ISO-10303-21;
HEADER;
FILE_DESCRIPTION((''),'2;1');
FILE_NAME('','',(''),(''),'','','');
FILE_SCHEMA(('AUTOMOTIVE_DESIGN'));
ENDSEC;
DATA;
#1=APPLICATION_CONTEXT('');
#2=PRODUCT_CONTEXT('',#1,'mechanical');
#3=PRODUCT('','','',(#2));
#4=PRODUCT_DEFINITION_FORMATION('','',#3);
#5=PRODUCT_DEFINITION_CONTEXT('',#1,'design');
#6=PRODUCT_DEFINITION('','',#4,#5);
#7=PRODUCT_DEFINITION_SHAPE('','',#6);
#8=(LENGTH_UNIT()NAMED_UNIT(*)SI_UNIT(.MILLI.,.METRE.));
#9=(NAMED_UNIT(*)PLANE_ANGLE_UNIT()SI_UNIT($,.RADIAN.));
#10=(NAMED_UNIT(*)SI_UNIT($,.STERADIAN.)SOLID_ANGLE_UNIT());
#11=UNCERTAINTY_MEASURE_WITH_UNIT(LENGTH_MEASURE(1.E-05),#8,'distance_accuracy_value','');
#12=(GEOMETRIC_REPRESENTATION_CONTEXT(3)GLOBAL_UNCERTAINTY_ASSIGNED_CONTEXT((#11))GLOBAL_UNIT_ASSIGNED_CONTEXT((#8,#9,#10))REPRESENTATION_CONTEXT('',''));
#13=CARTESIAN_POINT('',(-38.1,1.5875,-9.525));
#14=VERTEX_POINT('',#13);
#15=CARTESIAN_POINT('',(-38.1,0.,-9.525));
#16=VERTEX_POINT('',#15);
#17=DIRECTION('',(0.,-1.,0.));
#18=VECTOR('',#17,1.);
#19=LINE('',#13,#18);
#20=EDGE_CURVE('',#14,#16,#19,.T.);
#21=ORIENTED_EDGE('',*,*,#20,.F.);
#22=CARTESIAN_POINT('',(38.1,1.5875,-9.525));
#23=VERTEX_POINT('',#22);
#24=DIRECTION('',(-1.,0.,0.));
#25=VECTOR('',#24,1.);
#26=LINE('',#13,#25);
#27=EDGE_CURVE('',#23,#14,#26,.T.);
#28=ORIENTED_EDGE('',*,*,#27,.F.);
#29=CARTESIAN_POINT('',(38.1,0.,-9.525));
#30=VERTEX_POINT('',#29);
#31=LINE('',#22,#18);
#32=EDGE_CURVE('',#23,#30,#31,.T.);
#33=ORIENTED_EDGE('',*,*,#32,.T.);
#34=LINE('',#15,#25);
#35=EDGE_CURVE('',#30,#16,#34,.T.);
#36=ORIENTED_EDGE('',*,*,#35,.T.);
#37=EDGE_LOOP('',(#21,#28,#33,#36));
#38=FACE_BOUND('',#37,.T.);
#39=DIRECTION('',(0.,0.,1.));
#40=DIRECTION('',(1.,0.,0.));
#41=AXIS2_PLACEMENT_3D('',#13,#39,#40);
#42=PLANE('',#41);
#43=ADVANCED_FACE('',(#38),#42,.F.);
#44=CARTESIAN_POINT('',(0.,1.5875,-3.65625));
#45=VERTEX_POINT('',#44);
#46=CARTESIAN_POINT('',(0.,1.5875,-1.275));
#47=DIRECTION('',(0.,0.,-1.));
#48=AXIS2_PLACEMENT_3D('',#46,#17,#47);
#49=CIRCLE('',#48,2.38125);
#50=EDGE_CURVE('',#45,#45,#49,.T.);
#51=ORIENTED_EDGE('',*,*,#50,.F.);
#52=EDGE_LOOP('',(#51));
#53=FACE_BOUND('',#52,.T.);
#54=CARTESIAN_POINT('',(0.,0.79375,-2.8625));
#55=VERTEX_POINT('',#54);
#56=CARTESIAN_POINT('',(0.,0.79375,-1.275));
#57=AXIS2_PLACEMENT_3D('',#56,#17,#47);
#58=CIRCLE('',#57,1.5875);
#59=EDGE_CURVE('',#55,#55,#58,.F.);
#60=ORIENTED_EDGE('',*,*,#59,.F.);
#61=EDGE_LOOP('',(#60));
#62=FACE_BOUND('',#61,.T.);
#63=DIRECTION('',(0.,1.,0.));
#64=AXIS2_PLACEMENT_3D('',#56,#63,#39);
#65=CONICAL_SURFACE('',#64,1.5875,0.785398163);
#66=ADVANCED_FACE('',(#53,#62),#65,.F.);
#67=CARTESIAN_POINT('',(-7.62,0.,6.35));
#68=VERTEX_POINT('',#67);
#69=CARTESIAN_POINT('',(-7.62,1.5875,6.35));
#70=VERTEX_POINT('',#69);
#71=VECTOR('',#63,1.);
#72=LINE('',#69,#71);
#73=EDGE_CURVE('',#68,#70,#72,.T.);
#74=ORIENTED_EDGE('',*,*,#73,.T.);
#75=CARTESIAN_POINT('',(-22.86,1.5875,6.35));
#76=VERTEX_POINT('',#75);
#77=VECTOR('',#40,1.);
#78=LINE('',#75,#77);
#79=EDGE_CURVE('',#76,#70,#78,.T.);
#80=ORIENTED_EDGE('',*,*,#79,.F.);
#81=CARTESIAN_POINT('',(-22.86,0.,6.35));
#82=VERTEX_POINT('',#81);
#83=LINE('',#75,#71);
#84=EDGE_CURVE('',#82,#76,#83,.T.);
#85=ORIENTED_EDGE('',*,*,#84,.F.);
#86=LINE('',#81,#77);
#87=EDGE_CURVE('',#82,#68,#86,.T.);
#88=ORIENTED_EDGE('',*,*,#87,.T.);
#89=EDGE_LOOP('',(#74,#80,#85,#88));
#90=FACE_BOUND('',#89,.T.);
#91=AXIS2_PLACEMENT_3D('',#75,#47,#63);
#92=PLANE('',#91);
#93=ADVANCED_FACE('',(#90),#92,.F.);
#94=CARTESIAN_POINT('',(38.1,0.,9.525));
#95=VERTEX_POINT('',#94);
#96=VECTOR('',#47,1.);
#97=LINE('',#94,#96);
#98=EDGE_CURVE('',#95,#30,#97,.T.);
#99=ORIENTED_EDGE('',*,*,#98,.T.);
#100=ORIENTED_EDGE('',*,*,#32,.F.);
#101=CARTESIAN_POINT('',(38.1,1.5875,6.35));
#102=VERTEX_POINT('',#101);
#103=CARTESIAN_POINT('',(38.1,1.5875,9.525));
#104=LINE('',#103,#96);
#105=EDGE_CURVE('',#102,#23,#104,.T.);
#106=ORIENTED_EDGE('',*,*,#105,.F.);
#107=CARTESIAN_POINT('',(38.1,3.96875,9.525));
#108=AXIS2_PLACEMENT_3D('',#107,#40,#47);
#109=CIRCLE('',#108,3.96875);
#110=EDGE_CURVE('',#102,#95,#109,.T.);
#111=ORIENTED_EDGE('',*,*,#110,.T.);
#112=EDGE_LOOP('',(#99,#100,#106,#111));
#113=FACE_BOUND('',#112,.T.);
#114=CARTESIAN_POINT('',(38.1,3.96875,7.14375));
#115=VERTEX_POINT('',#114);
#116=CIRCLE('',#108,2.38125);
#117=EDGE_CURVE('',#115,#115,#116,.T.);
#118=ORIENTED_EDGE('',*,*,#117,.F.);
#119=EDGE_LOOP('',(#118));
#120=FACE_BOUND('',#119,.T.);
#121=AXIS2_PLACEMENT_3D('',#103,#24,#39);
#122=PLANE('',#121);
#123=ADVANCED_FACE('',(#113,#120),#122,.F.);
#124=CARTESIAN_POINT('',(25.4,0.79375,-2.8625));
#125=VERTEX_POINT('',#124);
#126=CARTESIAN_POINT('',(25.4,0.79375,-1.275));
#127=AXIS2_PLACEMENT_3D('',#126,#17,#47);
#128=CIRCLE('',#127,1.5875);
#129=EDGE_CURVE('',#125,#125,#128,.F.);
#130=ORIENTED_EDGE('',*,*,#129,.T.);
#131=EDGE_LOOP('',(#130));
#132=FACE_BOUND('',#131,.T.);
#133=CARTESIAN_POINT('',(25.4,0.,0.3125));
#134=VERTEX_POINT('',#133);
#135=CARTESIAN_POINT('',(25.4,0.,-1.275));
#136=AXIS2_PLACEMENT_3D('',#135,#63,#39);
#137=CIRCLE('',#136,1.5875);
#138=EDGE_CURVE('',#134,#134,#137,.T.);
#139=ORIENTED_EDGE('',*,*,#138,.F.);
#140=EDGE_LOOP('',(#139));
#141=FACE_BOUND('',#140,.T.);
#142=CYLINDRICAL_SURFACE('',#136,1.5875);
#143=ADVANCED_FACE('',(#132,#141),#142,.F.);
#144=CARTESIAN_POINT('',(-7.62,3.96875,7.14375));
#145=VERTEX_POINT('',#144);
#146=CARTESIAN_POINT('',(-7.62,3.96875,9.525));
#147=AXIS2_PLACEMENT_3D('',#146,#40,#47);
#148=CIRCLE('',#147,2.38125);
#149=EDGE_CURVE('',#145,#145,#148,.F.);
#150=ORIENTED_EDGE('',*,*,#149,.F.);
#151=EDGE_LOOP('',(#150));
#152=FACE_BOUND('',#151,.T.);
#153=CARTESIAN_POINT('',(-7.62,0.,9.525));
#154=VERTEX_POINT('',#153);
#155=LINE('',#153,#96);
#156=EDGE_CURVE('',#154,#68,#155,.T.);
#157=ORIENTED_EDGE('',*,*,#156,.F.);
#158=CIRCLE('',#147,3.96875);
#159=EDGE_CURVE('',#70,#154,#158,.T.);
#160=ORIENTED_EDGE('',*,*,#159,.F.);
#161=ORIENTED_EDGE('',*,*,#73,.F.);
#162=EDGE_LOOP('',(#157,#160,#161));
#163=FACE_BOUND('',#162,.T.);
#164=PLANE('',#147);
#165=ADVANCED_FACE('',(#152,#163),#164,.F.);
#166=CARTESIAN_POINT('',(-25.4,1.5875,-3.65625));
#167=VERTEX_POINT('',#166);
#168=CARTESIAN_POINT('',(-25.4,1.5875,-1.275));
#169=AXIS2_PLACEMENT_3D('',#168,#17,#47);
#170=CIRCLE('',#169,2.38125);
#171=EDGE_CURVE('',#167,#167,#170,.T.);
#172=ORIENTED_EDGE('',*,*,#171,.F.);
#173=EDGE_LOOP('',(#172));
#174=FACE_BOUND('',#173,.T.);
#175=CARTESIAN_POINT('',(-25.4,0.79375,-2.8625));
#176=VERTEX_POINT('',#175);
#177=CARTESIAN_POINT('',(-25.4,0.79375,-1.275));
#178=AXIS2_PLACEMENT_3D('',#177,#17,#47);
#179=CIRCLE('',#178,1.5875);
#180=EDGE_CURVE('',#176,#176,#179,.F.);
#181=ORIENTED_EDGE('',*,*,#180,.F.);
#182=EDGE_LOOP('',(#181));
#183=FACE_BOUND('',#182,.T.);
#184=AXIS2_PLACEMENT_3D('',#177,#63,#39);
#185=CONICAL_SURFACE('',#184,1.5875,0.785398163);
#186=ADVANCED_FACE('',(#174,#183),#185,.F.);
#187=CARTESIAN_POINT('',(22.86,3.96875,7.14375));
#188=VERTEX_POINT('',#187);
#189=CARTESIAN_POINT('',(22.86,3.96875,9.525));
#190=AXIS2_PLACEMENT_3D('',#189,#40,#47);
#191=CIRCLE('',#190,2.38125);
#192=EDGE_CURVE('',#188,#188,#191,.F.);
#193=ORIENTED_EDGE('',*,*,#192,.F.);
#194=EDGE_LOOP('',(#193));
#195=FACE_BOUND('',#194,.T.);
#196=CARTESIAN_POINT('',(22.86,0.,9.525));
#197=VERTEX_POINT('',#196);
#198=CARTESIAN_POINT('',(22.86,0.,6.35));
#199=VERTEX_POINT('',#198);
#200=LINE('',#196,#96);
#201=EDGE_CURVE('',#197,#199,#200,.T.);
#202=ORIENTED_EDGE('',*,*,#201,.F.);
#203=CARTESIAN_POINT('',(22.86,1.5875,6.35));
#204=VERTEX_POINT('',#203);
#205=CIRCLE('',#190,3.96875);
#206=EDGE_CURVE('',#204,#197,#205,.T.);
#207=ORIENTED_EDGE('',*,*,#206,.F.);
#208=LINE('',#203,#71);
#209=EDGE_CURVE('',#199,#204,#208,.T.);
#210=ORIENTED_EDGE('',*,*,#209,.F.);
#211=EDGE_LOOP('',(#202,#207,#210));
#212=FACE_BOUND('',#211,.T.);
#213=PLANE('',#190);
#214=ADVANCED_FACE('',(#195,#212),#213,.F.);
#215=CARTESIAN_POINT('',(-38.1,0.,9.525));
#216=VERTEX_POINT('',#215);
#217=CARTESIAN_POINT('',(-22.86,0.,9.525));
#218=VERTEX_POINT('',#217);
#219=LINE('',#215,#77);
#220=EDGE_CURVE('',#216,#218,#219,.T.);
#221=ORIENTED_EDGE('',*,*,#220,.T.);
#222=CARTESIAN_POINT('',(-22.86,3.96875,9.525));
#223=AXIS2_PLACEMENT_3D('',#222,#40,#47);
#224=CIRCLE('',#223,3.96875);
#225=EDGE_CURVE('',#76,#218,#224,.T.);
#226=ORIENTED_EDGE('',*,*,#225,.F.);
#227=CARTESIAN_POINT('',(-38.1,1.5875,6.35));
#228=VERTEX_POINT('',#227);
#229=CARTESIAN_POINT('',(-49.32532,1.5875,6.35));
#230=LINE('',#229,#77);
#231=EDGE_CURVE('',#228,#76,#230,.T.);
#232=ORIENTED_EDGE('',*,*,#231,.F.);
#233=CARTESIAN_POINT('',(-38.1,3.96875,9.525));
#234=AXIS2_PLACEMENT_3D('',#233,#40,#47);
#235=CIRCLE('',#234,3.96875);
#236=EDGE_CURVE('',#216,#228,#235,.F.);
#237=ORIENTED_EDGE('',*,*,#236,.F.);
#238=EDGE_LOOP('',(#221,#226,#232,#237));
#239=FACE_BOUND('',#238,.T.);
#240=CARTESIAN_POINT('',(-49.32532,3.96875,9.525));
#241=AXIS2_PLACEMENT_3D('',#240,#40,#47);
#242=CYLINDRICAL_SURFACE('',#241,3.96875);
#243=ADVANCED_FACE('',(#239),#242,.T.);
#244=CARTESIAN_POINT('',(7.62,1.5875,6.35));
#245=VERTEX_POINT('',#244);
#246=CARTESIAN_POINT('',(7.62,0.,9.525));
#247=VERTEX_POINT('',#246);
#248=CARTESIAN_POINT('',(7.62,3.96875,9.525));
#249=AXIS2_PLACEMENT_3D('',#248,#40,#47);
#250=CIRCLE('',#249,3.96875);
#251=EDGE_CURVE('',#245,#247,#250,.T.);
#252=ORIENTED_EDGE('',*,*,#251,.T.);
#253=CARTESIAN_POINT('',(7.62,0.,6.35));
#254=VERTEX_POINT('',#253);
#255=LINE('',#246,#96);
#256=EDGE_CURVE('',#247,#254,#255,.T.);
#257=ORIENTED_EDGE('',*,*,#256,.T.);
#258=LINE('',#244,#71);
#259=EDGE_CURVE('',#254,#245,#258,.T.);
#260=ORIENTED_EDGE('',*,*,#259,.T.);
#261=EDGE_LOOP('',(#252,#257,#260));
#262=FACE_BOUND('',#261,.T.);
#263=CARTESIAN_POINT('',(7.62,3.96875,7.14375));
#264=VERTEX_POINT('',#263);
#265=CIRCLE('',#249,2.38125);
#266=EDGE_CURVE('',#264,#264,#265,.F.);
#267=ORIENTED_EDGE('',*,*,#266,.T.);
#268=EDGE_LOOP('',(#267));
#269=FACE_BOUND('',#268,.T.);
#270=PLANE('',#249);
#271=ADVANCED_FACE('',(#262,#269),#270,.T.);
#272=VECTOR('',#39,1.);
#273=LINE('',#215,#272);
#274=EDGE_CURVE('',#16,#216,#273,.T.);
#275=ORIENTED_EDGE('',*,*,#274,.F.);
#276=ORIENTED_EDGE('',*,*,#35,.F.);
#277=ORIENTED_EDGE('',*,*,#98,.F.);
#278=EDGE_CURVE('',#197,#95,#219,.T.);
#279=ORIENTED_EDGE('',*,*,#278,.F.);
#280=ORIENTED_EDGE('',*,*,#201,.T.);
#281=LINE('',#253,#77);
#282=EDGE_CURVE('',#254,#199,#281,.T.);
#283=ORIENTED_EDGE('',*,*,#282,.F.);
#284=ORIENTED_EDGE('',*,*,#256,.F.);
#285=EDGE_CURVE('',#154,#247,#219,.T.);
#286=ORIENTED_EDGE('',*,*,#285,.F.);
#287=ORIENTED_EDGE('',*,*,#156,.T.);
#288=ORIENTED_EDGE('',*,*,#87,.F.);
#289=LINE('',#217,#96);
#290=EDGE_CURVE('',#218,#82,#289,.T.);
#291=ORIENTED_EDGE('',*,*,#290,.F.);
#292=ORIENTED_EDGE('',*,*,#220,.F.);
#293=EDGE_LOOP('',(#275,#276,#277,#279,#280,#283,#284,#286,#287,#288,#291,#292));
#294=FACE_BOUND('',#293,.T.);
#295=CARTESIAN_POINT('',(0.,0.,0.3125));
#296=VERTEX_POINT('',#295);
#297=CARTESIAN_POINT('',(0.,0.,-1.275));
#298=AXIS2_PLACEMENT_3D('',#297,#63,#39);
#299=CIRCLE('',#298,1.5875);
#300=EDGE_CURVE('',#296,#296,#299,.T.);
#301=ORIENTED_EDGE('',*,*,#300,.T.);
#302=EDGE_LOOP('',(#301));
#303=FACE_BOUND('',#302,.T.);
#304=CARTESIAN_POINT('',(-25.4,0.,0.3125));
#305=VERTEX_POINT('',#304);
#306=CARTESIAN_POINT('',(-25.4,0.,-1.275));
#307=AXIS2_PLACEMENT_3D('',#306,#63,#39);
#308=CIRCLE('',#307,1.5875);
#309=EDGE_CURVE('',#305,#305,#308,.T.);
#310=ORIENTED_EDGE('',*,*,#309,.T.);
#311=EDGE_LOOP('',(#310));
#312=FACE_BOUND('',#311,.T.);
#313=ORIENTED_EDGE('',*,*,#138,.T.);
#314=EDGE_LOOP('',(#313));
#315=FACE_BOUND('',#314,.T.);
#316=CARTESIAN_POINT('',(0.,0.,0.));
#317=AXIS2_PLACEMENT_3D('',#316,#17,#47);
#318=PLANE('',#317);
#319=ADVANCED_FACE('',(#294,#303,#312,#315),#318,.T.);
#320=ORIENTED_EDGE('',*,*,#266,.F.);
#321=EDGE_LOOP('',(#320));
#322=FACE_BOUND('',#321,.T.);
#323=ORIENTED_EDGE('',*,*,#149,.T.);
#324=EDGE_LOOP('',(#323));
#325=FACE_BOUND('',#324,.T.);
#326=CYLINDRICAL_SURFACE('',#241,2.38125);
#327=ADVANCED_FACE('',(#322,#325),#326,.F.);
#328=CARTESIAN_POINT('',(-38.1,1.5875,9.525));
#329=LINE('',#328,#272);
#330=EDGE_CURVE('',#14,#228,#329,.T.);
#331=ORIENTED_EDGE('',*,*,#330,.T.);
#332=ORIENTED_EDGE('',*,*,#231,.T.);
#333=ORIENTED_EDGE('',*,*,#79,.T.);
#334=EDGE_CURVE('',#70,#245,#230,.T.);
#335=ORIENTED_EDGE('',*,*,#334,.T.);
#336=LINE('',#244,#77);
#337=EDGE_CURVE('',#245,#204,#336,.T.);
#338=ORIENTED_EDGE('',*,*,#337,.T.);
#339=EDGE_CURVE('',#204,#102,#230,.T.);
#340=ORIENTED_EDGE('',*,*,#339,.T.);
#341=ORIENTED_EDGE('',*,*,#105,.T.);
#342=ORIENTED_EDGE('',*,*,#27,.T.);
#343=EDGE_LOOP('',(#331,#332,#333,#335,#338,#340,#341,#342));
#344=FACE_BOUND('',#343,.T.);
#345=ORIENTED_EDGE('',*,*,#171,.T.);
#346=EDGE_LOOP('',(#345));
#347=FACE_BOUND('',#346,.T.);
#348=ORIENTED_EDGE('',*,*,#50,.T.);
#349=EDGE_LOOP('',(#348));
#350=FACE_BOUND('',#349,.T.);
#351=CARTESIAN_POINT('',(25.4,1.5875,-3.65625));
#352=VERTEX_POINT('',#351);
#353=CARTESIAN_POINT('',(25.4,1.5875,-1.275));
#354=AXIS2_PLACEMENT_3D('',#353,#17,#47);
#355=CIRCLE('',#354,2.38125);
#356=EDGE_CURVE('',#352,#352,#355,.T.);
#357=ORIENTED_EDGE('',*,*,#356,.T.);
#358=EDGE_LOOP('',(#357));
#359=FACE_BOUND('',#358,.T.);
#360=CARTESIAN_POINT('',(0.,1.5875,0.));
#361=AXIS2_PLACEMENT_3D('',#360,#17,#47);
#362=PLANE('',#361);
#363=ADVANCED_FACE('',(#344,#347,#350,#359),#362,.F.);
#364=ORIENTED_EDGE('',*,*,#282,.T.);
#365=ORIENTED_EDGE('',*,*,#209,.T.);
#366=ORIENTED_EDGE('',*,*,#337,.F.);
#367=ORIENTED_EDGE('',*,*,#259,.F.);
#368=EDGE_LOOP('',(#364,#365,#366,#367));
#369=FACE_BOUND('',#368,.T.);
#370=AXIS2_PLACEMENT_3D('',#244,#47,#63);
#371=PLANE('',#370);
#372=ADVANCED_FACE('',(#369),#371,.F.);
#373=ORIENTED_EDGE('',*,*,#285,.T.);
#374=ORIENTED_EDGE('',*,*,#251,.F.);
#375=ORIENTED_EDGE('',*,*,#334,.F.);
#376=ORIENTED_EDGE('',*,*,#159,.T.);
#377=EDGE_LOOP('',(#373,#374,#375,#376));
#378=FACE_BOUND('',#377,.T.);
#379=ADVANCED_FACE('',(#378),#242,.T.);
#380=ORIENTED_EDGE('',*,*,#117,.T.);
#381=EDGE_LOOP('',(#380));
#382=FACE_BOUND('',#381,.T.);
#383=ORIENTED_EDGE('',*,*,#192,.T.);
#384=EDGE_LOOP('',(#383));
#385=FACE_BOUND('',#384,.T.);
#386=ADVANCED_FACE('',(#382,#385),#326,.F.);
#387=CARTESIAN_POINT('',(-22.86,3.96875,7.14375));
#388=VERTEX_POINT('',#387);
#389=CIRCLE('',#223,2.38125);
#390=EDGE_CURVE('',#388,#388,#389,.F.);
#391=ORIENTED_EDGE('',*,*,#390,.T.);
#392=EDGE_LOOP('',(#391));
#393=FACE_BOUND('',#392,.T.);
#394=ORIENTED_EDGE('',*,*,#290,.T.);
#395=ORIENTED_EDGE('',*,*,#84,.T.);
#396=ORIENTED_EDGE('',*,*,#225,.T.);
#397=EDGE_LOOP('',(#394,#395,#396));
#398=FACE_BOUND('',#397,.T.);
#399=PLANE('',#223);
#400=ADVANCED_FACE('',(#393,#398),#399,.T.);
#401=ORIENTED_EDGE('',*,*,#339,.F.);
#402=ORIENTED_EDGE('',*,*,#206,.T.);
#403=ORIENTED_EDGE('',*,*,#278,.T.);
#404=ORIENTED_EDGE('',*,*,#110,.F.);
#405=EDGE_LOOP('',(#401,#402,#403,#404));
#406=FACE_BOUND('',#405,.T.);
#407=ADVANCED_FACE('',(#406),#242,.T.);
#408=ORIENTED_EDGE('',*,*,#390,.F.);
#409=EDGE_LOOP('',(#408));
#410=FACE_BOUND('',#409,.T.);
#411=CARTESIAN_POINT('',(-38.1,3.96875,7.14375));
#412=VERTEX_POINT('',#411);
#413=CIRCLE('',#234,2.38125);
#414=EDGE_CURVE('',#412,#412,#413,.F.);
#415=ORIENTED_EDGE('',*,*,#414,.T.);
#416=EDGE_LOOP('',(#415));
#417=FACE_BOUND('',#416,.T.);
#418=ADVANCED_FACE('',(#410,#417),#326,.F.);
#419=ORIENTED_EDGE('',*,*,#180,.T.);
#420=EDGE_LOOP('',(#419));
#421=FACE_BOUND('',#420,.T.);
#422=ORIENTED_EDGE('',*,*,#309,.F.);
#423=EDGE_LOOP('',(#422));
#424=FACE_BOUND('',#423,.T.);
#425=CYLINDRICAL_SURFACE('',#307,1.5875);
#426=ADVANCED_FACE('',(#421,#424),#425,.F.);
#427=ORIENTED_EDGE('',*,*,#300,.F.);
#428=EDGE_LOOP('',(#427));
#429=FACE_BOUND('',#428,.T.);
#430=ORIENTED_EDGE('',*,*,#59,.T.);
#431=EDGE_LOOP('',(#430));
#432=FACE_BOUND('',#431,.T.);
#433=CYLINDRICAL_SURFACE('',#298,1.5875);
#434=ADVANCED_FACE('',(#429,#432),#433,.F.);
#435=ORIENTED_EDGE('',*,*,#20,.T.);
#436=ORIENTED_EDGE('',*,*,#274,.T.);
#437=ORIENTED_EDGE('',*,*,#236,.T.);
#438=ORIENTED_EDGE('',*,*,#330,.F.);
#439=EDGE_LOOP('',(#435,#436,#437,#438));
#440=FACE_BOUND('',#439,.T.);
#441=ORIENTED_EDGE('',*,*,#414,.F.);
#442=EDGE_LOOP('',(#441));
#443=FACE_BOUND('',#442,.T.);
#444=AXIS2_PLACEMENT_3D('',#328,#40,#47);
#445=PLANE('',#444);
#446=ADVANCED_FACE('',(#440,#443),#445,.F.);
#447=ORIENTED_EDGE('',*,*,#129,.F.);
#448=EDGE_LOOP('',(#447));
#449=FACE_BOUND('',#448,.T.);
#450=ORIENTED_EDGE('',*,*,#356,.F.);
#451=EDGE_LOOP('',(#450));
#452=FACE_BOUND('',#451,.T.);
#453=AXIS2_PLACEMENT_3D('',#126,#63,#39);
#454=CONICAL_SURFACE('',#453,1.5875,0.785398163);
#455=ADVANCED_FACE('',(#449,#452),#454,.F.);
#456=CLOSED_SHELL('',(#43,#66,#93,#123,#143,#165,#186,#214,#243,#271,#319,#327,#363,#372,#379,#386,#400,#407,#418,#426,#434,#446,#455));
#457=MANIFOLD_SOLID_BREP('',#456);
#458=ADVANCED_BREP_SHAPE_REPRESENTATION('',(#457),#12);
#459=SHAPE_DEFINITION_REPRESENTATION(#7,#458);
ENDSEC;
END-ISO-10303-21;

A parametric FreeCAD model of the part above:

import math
import FreeCAD as App
import Part
import Sketcher
Q = App.Units.Quantity


def edges_at(feature, points):
    """Names of the edges that pass closest to the given points."""
    edges = feature.Shape.Edges
    near = lambda p: min(range(len(edges)), key=lambda i: edges[i].distToShape(Part.Vertex(*p))[0])
    return sorted({f"Edge{near(p) + 1}" for p in points})

doc = App.newDocument("Part")
body = doc.addObject("PartDesign::Body", "Body")

sketch1 = doc.addObject("Sketcher::SketchObject", "Sketch")
body.addObject(sketch1)
sketch1.AttachmentSupport = (doc.XZ_Plane, [""])
sketch1.MapMode = "FlatFace"
sketch1.addGeometry([
    Part.LineSegment(App.Vector(-38, -10, 0), App.Vector(-38, 10, 0)),
    Part.LineSegment(App.Vector(-38, 10, 0), App.Vector(38, 10, 0)),
    Part.LineSegment(App.Vector(38, 10, 0), App.Vector(38, -10, 0)),
    Part.LineSegment(App.Vector(38, -10, 0), App.Vector(-38, -10, 0)),
], False)
sketch1.addConstraint([
    Sketcher.Constraint("Coincident", 0, 2, 1, 1),
    Sketcher.Constraint("Coincident", 1, 2, 2, 1),
    Sketcher.Constraint("Coincident", 2, 2, 3, 1),
    Sketcher.Constraint("Coincident", 3, 2, 0, 1),
    Sketcher.Constraint("Vertical", 0),
    Sketcher.Constraint("Horizontal", 1),
    Sketcher.Constraint("Vertical", 2),
    Sketcher.Constraint("Horizontal", 3),
    Sketcher.Constraint("Symmetric", 0, 2, 2, 2, -1, 1),
    Sketcher.Constraint("DistanceX", 1, 1, 1, 2, Q("3 in")),
    Sketcher.Constraint("DistanceY", 0, 1, 0, 2, Q("0.75 in")),
])
pad1 = doc.addObject("PartDesign::Pad", "Pad")
body.addObject(pad1)
pad1.Profile = sketch1
pad1.Length = Q("0.0625 in")
pad1.Reversed = True

sketch2 = doc.addObject("Sketcher::SketchObject", "Sketch001")
body.addObject(sketch2)
sketch2.AttachmentSupport = (doc.YZ_Plane, [""])
sketch2.MapMode = "FlatFace"
sketch2.AttachmentOffset = App.Placement(App.Vector(0, 0, 1.5 * 25.4), App.Rotation())
sketch2.addGeometry([
    Part.Circle(App.Vector(4, 9.5, 0), App.Vector(0, 0, 1), 4),
    Part.Circle(App.Vector(4, 9.5, 0), App.Vector(0, 0, 1), 2.4),
], False)
sketch2.addConstraint([
    Sketcher.Constraint("Coincident", 1, 3, 0, 3),
    Sketcher.Constraint("Diameter", 0, Q("0.3125 in")),
    Sketcher.Constraint("Diameter", 1, Q("0.1875 in")),
    Sketcher.Constraint("DistanceX", -1, 1, 0, 3, Q("0.15625 in")),
    Sketcher.Constraint("DistanceY", -1, 1, 0, 3, Q("0.375 in")),
])
pad2 = doc.addObject("PartDesign::Pad", "Pad001")
body.addObject(pad2)
pad2.Profile = sketch2
pad2.Length = Q("3 in")
pad2.Reversed = True

sketch3 = doc.addObject("Sketcher::SketchObject", "Sketch002")
body.addObject(sketch3)
sketch3.AttachmentSupport = (doc.XZ_Plane, [""])
sketch3.MapMode = "FlatFace"
sketch3.AttachmentOffset = App.Placement(App.Vector(0, 0, -0.0625 * 25.4), App.Rotation())
sketch3.addGeometry(Part.Circle(App.Vector(-25.4, -1.3, 0), App.Vector(0, 0, 1), 1.6), False)
sketch3.addConstraint([
    Sketcher.Constraint("Diameter", 0, Q("0.125 in")),
    Sketcher.Constraint("DistanceX", 0, 3, -1, 1, Q("1 in")),
    Sketcher.Constraint("DistanceY", 0, 3, -1, 1, 1.275),
])
pocket1 = doc.addObject("PartDesign::Pocket", "Pocket")
body.addObject(pocket1)
pocket1.Profile = sketch3
pocket1.Type = "ThroughAll"
pocket1.Reversed = True
doc.recompute()

chamfer = doc.addObject("PartDesign::Chamfer", "Chamfer")
body.addObject(chamfer)
chamfer.Base = (pocket1, edges_at(pocket1, [(-25.4, 1.587, -2.862)]))
chamfer.Size = Q("0.03125 in")
doc.recompute()

linearpattern = doc.addObject("PartDesign::LinearPattern", "LinearPattern")
body.addObject(linearpattern)
linearpattern.Originals = [pocket1]
linearpattern.Direction = (doc.X_Axis, [""])
linearpattern.Mode = "offset"
linearpattern.Offset = Q("1 in")
linearpattern.Occurrences = 3
body.Tip = linearpattern
doc.recompute()

chamfer2 = doc.addObject("PartDesign::Chamfer", "Chamfer001")
body.addObject(chamfer2)
chamfer2.Base = (linearpattern, edges_at(linearpattern, [(0, 1.587, -2.862), (25.4, 1.587, -2.862)]))
chamfer2.Size = Q("0.03125 in")

sketch4 = doc.addObject("Sketcher::SketchObject", "Sketch003")
body.addObject(sketch4)
sketch4.AttachmentSupport = (doc.YZ_Plane, [""])
sketch4.MapMode = "FlatFace"
sketch4.AttachmentOffset = App.Placement(App.Vector(0, 0, 0.9 * 25.4), App.Rotation())
sketch4.addGeometry([
    Part.LineSegment(App.Vector(0, 6.3, 0), App.Vector(1.6, 6.3, 0)),
    Part.ArcOfCircle(Part.Circle(App.Vector(4, 9.5, 0), App.Vector(0, 0, 1), 4), math.radians(-127), math.radians(180)),
    Part.LineSegment(App.Vector(0, 9.5, 0), App.Vector(0, 6.3, 0)),
], False)
sketch4.addConstraint([
    Sketcher.Constraint("Coincident", 0, 2, 1, 1),
    Sketcher.Constraint("Tangent", 1, 2, 2, 1),
    Sketcher.Constraint("Coincident", 2, 2, 0, 1),
    Sketcher.Constraint("Horizontal", 0),
    Sketcher.Constraint("Vertical", 2),
    Sketcher.Constraint("PointOnObject", 1, 2, -2),
    Sketcher.Constraint("Radius", 1, Q("0.15625 in")),
    Sketcher.Constraint("DistanceX", 0, 1, 0, 2, Q("0.0625 in")),
    Sketcher.Constraint("DistanceY", -1, 1, 0, 2, Q("0.25 in")),
])
pocket2 = doc.addObject("PartDesign::Pocket", "Pocket001")
body.addObject(pocket2)
pocket2.Profile = sketch4
pocket2.Length = Q("0.6 in")
doc.recompute()

linearpattern2 = doc.addObject("PartDesign::LinearPattern", "LinearPattern001")
body.addObject(linearpattern2)
linearpattern2.Originals = [pocket2]
linearpattern2.Direction = (doc.X_Axis, [""])
linearpattern2.Mode = "offset"
linearpattern2.Offset = Q("1.2 in")
linearpattern2.Occurrences = 3
linearpattern2.Reversed = True
body.Tip = linearpattern2

doc.recompute()
